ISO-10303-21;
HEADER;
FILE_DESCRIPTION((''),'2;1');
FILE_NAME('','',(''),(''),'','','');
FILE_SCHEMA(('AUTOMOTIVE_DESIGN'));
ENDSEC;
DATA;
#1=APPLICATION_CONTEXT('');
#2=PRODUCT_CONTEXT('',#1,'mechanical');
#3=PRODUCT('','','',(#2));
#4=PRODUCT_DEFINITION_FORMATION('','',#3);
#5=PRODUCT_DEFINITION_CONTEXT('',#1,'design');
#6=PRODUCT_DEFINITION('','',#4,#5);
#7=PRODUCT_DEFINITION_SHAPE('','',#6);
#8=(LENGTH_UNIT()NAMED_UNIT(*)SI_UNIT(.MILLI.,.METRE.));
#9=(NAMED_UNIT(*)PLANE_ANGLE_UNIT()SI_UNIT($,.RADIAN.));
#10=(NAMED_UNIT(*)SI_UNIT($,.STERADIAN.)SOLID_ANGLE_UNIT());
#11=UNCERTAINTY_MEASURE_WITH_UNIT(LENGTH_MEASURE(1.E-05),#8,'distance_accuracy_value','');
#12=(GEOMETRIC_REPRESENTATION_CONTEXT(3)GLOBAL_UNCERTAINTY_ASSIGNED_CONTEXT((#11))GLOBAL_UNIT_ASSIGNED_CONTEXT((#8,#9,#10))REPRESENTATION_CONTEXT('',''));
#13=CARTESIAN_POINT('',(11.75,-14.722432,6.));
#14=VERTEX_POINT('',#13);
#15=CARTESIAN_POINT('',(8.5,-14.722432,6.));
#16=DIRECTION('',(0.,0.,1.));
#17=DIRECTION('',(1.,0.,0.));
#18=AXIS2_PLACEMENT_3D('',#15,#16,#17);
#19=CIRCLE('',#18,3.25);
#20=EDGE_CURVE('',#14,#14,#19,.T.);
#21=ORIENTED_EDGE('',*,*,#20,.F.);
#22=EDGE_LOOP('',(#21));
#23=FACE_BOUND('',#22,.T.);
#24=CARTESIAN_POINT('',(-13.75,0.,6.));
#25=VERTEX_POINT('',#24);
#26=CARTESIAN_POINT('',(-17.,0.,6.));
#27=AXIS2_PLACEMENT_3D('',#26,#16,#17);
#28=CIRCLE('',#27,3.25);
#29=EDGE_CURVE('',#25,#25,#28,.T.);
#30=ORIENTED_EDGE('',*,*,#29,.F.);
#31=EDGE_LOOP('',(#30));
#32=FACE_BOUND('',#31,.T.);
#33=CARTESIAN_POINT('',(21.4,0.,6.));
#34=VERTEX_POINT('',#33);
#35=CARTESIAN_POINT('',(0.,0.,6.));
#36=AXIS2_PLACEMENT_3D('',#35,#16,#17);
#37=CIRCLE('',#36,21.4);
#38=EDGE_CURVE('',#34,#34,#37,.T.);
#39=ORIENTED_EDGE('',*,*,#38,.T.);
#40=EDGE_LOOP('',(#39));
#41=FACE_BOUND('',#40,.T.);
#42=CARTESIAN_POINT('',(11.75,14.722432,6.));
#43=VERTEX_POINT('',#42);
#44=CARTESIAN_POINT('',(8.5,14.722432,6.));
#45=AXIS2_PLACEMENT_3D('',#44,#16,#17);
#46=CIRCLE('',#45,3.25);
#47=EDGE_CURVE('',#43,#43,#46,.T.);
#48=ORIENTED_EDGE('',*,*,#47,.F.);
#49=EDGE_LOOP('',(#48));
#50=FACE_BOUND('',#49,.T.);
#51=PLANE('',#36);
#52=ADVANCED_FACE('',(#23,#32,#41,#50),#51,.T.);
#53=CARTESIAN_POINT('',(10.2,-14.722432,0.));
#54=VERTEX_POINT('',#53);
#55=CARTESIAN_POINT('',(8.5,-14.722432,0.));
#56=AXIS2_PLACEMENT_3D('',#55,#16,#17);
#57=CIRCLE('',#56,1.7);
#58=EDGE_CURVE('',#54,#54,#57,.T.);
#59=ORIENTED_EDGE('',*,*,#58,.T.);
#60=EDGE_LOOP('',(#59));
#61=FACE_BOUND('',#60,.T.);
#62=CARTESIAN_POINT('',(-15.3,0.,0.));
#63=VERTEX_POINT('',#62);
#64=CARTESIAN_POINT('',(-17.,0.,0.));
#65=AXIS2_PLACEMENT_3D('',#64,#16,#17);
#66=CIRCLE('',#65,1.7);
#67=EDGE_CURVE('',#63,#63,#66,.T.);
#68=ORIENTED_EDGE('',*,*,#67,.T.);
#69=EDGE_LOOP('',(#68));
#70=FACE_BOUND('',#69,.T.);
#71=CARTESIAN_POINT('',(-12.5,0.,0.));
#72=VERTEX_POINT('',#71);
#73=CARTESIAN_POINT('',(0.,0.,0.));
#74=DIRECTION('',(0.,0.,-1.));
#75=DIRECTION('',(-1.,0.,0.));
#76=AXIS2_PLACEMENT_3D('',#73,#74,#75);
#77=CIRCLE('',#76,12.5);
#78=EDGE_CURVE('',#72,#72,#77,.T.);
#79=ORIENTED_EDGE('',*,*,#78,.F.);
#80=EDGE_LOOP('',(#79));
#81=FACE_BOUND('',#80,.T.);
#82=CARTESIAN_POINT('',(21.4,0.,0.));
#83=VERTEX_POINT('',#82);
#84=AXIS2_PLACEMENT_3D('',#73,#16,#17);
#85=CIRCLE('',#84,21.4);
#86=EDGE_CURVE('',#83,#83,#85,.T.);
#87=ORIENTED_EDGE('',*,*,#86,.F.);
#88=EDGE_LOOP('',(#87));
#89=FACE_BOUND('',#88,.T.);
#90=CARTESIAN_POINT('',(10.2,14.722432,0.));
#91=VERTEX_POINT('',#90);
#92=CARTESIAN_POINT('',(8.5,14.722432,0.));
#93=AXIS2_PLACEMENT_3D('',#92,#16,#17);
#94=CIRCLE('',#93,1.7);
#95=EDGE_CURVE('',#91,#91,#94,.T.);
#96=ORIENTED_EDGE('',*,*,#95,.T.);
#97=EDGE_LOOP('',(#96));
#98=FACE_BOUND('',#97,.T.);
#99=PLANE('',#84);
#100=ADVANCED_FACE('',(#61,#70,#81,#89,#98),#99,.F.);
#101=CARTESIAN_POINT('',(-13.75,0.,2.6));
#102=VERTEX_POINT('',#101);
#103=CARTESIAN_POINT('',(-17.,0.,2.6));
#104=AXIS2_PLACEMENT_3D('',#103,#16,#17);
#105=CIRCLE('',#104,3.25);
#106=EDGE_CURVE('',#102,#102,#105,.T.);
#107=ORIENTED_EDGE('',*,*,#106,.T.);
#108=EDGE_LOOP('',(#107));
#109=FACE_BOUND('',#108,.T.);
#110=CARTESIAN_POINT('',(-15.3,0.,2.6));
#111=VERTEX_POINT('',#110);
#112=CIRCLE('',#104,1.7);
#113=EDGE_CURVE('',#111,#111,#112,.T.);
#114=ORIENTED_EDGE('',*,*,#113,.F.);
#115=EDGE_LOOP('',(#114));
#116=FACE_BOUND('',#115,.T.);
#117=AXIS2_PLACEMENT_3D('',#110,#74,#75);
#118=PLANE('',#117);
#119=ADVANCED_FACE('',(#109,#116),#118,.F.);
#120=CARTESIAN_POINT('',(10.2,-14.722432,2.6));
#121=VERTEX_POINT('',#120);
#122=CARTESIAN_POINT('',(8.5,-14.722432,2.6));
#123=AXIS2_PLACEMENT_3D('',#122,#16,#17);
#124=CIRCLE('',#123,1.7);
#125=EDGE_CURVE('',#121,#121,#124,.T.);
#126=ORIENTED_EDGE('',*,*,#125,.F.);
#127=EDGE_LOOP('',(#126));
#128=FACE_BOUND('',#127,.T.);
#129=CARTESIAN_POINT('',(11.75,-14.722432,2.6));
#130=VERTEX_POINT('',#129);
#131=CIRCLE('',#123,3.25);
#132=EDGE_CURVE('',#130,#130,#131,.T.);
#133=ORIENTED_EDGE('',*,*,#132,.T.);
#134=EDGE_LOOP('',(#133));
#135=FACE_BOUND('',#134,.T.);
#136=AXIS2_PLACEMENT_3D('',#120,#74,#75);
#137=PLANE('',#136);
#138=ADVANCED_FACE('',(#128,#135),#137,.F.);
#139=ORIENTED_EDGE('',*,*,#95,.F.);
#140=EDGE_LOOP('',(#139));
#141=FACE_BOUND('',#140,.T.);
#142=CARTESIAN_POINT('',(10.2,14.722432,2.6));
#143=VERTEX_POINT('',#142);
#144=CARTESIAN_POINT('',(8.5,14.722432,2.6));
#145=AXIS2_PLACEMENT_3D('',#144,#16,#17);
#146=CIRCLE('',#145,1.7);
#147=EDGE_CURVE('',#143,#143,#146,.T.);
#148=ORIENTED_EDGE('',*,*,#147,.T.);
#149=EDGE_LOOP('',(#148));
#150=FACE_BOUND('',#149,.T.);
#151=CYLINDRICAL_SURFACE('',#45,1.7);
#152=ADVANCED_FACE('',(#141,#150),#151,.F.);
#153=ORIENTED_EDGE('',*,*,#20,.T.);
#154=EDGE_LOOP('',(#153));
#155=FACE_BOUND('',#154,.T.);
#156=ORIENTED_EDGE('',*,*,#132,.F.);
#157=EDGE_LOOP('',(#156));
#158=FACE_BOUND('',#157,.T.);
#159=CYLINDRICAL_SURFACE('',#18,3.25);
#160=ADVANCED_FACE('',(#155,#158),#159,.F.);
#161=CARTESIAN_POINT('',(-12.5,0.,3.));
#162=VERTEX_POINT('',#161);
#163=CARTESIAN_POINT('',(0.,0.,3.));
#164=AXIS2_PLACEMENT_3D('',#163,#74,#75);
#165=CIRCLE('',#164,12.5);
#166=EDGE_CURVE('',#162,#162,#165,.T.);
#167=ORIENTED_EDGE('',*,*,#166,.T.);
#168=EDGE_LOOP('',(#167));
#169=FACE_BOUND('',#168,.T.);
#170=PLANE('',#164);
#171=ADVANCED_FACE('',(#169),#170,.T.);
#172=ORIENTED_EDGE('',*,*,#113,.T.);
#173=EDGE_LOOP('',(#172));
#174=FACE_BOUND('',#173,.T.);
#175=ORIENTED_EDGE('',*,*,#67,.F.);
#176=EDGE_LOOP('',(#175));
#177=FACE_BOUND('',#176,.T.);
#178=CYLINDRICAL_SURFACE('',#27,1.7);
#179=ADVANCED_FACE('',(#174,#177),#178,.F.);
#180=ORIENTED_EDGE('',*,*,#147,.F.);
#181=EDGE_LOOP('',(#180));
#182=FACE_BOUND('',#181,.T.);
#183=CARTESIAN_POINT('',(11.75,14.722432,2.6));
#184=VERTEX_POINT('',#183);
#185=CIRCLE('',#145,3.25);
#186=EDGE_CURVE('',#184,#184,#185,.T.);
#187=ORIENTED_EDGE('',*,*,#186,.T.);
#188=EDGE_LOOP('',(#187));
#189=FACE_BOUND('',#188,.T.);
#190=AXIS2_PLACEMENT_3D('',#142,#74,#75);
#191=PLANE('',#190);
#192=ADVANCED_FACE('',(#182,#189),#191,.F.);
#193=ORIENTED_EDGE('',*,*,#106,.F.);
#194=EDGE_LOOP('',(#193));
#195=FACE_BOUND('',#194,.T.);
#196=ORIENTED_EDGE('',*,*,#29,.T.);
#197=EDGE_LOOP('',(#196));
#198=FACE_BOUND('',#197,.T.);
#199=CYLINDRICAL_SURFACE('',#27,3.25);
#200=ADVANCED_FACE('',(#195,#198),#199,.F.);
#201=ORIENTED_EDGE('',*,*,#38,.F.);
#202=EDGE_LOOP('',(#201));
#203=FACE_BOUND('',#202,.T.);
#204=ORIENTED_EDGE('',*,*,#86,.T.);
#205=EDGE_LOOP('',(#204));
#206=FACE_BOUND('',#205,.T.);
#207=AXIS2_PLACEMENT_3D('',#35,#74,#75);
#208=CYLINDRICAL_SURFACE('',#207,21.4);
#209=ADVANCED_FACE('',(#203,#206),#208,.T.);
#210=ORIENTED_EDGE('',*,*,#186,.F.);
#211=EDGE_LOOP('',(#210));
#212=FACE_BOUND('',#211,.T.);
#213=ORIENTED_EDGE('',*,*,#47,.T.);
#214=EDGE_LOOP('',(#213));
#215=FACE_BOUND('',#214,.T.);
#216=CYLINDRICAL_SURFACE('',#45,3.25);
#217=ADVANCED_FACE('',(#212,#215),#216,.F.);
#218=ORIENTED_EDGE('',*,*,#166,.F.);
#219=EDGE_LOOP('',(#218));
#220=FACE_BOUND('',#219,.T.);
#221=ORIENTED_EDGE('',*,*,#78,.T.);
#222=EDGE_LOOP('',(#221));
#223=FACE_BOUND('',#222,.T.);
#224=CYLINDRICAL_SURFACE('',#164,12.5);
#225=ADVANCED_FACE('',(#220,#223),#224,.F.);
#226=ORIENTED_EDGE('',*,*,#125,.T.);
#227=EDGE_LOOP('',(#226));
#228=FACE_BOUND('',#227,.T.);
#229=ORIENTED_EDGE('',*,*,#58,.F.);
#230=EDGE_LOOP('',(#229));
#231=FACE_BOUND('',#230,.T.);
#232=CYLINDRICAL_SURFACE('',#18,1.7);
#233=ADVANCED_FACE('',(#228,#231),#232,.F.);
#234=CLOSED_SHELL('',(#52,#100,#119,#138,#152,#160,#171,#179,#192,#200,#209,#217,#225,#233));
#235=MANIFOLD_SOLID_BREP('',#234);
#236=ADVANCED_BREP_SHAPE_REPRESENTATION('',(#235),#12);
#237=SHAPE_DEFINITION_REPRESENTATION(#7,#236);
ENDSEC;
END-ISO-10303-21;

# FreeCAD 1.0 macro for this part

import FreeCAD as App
import Part
import Sketcher
from FreeCAD import Vector
Q = App.Units.Quantity

doc = App.newDocument("Part")
body = doc.addObject("PartDesign::Body", "Body")

# Sketch on XY plane
sketch1 = body.newObject("Sketcher::SketchObject", "Sketch")
sketch1.AttachmentSupport = (doc.getObject("XY_Plane"), [""])
sketch1.MapMode = "FlatFace"
sketch1.addGeometry(Part.Circle(Vector(0, 0, 0), Vector(0, 0, 1), 21), False)
sketch1.addConstraint([
    Sketcher.Constraint("Coincident", 0, 3, -1, 1),
    Sketcher.Constraint("Diameter", 0, Q("42.8 mm")),
])
pad1 = body.newObject("PartDesign::Pad", "Pad")
pad1.Profile = sketch1
pad1.Length = 6

# Sketch on XY plane
sketch2 = body.newObject("Sketcher::SketchObject", "Sketch001")
sketch2.AttachmentSupport = (doc.getObject("XY_Plane"), [""])
sketch2.MapMode = "FlatFace"
sketch2.addGeometry(Part.Circle(Vector(0, 0, 0), Vector(0, 0, 1), 12), False)
sketch2.addConstraint([
    Sketcher.Constraint("Coincident", 0, 3, -1, 1),
    Sketcher.Constraint("Diameter", 0, Q("25 mm")),
])
pocket1 = body.newObject("PartDesign::Pocket", "Pocket")
pocket1.Profile = sketch2
pocket1.Length = 3
pocket1.Reversed = True

# Sketch on XY plane
sketch3 = body.newObject("Sketcher::SketchObject", "Sketch002")
sketch3.AttachmentSupport = (doc.getObject("XY_Plane"), [""])
sketch3.MapMode = "FlatFace"
sketch3.AttachmentOffset = App.Placement(Vector(0, 0, 6), App.Rotation())
sketch3.addGeometry([
    Part.Circle(Vector(-17, 0, 0), Vector(0, 0, 1), 1.7),
    Part.Circle(Vector(8.5, 14.7, 0), Vector(0, 0, 1), 1.7),
    Part.Circle(Vector(8.5, -14.7, 0), Vector(0, 0, 1), 1.7),
], False)
sketch3.addConstraint([
    Sketcher.Constraint("Equal", 0, 1),
    Sketcher.Constraint("Equal", 1, 2),
    Sketcher.Constraint("Symmetric", 1, 3, 2, 3, -1),
    Sketcher.Constraint("PointOnObject", 0, 3, -1),
    Sketcher.Constraint("Diameter", 0, Q("3.4 mm")),
    Sketcher.Constraint("DistanceX", 0, 3, -1, 1, Q("17 mm")),
    Sketcher.Constraint("DistanceX", -1, 1, 1, 3, Q("8.5 mm")),
    Sketcher.Constraint("DistanceY", -1, 1, 1, 3, Q("14.722432 mm")),
])
doc.recompute()
hole = body.newObject("PartDesign::Hole", "Hole")
hole.Profile = sketch3
hole.ThreadType = "None"
hole.Diameter = 3.4
hole.DepthType = "Dimension"
hole.Depth = 8
hole.DrillPoint = "Angled"
hole.DrillPointAngle = 118
hole.HoleCutType = "Counterbore"
hole.HoleCutDiameter = 6.5
hole.HoleCutDepth = 3.4

doc.recompute()
